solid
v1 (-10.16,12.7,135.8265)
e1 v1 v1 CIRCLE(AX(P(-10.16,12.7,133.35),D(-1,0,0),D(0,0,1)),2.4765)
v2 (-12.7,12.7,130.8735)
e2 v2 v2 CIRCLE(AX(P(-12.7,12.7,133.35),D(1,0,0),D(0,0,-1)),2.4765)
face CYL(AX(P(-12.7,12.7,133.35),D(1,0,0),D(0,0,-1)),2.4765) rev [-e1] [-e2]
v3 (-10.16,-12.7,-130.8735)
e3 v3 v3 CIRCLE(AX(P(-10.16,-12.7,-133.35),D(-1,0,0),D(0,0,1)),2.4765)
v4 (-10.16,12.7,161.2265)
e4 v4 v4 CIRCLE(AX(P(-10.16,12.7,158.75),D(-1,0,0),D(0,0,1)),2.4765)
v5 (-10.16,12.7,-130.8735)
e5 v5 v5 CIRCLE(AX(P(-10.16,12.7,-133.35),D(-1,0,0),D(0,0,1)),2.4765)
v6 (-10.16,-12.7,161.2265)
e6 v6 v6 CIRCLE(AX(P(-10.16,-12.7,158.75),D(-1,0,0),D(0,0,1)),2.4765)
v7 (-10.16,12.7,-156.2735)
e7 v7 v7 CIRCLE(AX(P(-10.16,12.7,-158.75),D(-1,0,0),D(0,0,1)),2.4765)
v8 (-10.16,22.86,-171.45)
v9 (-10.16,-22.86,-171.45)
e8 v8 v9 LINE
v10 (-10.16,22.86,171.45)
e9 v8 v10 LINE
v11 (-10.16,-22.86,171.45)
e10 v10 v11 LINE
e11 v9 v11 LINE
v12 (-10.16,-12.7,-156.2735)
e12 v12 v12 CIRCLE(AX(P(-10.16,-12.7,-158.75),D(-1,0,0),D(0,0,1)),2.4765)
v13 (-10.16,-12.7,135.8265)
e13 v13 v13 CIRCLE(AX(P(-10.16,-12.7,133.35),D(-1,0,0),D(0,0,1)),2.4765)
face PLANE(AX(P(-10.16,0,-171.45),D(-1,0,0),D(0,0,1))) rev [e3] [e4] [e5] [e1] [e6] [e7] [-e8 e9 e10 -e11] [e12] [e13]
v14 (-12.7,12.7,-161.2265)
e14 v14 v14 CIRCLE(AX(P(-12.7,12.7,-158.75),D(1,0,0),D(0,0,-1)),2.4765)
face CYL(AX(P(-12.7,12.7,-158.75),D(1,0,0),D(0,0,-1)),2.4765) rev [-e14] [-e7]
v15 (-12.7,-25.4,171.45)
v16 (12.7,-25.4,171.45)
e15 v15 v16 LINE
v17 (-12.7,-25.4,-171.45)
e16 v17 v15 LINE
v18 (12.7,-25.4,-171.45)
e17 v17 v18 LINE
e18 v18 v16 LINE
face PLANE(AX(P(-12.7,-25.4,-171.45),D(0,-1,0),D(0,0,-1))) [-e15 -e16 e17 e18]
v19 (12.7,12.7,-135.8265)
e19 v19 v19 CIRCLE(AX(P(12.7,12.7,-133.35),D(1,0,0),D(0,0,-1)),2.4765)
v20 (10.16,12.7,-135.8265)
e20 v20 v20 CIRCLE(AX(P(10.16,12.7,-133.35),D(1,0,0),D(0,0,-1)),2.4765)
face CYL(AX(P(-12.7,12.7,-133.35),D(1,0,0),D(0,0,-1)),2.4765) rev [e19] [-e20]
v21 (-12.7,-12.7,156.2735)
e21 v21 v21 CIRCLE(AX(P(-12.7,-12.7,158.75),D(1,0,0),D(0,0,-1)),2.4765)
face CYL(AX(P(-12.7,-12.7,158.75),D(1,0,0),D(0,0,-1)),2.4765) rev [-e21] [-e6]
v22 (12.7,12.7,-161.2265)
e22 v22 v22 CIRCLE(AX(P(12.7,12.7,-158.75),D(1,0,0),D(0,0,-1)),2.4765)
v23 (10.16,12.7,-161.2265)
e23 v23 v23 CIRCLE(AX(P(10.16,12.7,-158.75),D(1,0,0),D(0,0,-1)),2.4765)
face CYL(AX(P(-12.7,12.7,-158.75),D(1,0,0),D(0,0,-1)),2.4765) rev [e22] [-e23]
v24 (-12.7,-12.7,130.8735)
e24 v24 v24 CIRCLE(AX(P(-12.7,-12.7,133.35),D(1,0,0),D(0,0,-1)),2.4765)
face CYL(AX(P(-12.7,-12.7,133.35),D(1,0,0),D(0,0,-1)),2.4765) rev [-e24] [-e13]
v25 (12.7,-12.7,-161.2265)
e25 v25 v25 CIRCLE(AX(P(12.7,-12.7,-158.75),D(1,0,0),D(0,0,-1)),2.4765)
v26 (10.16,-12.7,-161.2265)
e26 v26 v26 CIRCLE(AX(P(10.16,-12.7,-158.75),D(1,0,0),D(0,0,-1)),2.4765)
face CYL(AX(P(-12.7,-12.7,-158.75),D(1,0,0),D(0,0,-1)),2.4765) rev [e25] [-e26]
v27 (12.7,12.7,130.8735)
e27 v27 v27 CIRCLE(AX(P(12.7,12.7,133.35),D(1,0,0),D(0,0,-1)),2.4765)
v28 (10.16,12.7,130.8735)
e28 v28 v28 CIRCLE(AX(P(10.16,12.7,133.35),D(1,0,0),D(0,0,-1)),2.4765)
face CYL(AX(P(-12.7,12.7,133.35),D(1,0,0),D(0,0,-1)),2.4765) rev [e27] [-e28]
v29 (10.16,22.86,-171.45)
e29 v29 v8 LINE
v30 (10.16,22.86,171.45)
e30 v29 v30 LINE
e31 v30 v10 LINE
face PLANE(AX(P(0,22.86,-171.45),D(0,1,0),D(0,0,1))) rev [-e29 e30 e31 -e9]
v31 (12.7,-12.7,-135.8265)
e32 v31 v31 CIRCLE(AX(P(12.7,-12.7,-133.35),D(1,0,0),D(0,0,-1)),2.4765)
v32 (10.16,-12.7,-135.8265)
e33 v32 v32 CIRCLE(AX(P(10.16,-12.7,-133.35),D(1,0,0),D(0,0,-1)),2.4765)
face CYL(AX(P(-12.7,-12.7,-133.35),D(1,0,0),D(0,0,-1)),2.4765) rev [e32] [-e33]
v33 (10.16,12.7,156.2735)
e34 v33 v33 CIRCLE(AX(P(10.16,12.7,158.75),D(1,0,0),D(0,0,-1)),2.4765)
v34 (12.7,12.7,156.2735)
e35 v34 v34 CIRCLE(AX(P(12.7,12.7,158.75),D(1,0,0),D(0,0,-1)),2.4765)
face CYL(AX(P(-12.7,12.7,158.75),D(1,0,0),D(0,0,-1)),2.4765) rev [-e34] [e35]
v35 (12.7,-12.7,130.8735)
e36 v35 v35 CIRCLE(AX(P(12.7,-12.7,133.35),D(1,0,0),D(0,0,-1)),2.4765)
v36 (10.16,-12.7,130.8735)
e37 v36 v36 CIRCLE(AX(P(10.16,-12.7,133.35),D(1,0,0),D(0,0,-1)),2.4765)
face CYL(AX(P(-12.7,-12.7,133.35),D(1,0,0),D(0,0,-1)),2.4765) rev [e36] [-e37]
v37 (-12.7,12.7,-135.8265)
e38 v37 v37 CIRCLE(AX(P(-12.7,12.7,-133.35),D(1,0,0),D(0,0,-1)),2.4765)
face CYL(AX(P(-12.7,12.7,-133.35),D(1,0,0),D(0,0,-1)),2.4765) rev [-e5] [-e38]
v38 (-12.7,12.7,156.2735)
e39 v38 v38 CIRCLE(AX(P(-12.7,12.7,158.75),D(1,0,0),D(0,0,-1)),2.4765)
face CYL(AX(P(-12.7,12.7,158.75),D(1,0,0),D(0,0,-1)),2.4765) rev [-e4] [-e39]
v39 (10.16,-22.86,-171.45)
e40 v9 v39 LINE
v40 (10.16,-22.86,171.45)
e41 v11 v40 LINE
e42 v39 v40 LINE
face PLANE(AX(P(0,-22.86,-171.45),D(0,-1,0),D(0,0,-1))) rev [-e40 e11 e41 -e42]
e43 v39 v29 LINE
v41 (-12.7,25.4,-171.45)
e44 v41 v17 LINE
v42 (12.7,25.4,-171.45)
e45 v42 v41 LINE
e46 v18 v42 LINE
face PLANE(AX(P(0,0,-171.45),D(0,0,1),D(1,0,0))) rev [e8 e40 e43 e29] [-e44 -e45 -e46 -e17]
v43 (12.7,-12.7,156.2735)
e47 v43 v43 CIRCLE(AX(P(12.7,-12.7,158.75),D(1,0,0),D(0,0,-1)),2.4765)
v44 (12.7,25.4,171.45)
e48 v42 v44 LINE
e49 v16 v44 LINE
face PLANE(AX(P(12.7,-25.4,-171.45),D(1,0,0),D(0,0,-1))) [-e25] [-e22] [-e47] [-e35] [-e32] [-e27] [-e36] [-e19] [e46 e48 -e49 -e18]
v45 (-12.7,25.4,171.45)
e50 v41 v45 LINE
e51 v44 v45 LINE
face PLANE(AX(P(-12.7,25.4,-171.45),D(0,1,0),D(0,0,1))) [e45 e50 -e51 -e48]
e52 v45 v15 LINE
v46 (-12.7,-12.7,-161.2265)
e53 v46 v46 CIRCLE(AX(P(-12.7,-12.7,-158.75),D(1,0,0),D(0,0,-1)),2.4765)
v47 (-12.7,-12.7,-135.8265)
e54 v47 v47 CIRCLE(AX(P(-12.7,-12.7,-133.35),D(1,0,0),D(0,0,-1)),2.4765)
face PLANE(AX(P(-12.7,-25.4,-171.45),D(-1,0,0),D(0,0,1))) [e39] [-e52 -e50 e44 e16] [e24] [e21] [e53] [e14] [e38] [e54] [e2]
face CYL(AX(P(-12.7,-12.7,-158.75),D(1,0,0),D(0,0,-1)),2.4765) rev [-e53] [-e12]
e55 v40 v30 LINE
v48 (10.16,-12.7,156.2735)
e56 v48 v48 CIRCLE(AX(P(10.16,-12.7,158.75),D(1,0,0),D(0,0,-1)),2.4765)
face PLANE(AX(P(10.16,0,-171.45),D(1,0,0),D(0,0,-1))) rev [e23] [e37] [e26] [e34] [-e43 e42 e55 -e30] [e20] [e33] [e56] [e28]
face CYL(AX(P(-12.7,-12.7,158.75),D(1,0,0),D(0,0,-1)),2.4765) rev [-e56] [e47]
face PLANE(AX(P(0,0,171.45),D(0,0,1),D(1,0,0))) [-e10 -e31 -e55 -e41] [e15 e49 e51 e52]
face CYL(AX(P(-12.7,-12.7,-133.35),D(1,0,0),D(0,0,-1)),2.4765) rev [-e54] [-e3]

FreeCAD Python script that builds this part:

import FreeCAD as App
import Part
import Sketcher
from FreeCAD import Vector
Q = App.Units.Quantity

doc = App.newDocument("Part")
body = doc.addObject("PartDesign::Body", "Body")

# Sketch on XY plane
sketch1 = doc.addObject("Sketcher::SketchObject", "Sketch")
body.addObject(sketch1)
sketch1.AttachmentSupport = (doc.XY_Plane, [""])
sketch1.MapMode = "FlatFace"
sketch1.addGeometry(Part.LineSegment(Vector(-13, 25, 0), Vector(-13, -25, 0)), False)
sketch1.addGeometry(Part.LineSegment(Vector(-13, -25, 0), Vector(13, -25, 0)), False)
sketch1.addGeometry(Part.LineSegment(Vector(13, -25, 0), Vector(13, 25, 0)), False)
sketch1.addGeometry(Part.LineSegment(Vector(13, 25, 0), Vector(-13, 25, 0)), False)
sketch1.addGeometry(Part.LineSegment(Vector(10, -23, 0), Vector(-10, -23, 0)), False)
sketch1.addGeometry(Part.LineSegment(Vector(-10, -23, 0), Vector(-10, 23, 0)), False)
sketch1.addGeometry(Part.LineSegment(Vector(-10, 23, 0), Vector(10, 23, 0)), False)
sketch1.addGeometry(Part.LineSegment(Vector(10, 23, 0), Vector(10, -23, 0)), False)
sketch1.addConstraint(Sketcher.Constraint("Coincident", 0, 2, 1, 1))
sketch1.addConstraint(Sketcher.Constraint("Coincident", 1, 2, 2, 1))
sketch1.addConstraint(Sketcher.Constraint("Coincident", 2, 2, 3, 1))
sketch1.addConstraint(Sketcher.Constraint("Coincident", 3, 2, 0, 1))
sketch1.addConstraint(Sketcher.Constraint("Coincident", 4, 2, 5, 1))
sketch1.addConstraint(Sketcher.Constraint("Coincident", 5, 2, 6, 1))
sketch1.addConstraint(Sketcher.Constraint("Coincident", 6, 2, 7, 1))
sketch1.addConstraint(Sketcher.Constraint("Coincident", 7, 2, 4, 1))
sketch1.addConstraint(Sketcher.Constraint("Vertical", 0))
sketch1.addConstraint(Sketcher.Constraint("Horizontal", 1))
sketch1.addConstraint(Sketcher.Constraint("Vertical", 2))
sketch1.addConstraint(Sketcher.Constraint("Horizontal", 3))
sketch1.addConstraint(Sketcher.Constraint("Horizontal", 4))
sketch1.addConstraint(Sketcher.Constraint("Vertical", 5))
sketch1.addConstraint(Sketcher.Constraint("Horizontal", 6))
sketch1.addConstraint(Sketcher.Constraint("Vertical", 7))
sketch1.addConstraint(Sketcher.Constraint("Symmetric", 0, 2, 2, 2, -1, 1))
sketch1.addConstraint(Sketcher.Constraint("Symmetric", 4, 2, 6, 2, -1, 1))
sketch1.addConstraint(Sketcher.Constraint("DistanceX", 1, 1, 1, 2, Q("1 in")))
sketch1.addConstraint(Sketcher.Constraint("DistanceY", 0, 2, 0, 1, Q("2 in")))
sketch1.addConstraint(Sketcher.Constraint("DistanceX", 4, 2, 4, 1, Q("0.8 in")))
sketch1.addConstraint(Sketcher.Constraint("DistanceY", 5, 1, 5, 2, Q("1.8 in")))
pad1 = doc.addObject("PartDesign::Pad", "Pad")
body.addObject(pad1)
pad1.Profile = sketch1
pad1.Length = Q("13.5 in")
pad1.Midplane = True

# Sketch on YZ plane
sketch2 = doc.addObject("Sketcher::SketchObject", "Sketch001")
body.addObject(sketch2)
sketch2.AttachmentSupport = (doc.YZ_Plane, [""])
sketch2.MapMode = "FlatFace"
sketch2.addGeometry(Part.Circle(Vector(12.7, -133.3, 0), Vector(0, 0, 1), 2.5), False)
sketch2.addGeometry(Part.Circle(Vector(-12.7, -133.3, 0), Vector(0, 0, 1), 2.5), False)
sketch2.addGeometry(Part.Circle(Vector(-12.7, -158.8, 0), Vector(0, 0, 1), 2.5), False)
sketch2.addGeometry(Part.Circle(Vector(12.7, -158.8, 0), Vector(0, 0, 1), 2.5), False)
sketch2.addGeometry(Part.Circle(Vector(12.7, 133.3, 0), Vector(0, 0, 1), 2.5), False)
sketch2.addGeometry(Part.Circle(Vector(12.7, 158.8, 0), Vector(0, 0, 1), 2.5), False)
sketch2.addGeometry(Part.Circle(Vector(-12.7, 158.8, 0), Vector(0, 0, 1), 2.5), False)
sketch2.addGeometry(Part.Circle(Vector(-12.7, 133.3, 0), Vector(0, 0, 1), 2.5), False)
sketch2.addConstraint(Sketcher.Constraint("Equal", 0, 1))
sketch2.addConstraint(Sketcher.Constraint("Equal", 1, 2))
sketch2.addConstraint(Sketcher.Constraint("Equal", 2, 3))
sketch2.addConstraint(Sketcher.Constraint("Equal", 3, 4))
sketch2.addConstraint(Sketcher.Constraint("Equal", 4, 5))
sketch2.addConstraint(Sketcher.Constraint("Equal", 5, 6))
sketch2.addConstraint(Sketcher.Constraint("Equal", 6, 7))
sketch2.addConstraint(Sketcher.Constraint("Symmetric", 1, 3, 4, 3, -1, 1))
sketch2.addConstraint(Sketcher.Constraint("Symmetric", 2, 3, 5, 3, -1, 1))
sketch2.addConstraint(Sketcher.Constraint("Symmetric", 3, 3, 6, 3, -1, 1))
sketch2.addConstraint(Sketcher.Constraint("Symmetric", 0, 3, 7, 3, -1, 1))
sketch2.addConstraint(Sketcher.Constraint("Symmetric", 0, 3, 1, 3, -2))
sketch2.addConstraint(Sketcher.Constraint("Symmetric", 2, 3, 3, 3, -2))
sketch2.addConstraint(Sketcher.Constraint("Vertical", 1, 3, 2, 3))
sketch2.addConstraint(Sketcher.Constraint("Diameter", 0, Q("0.195 in")))
sketch2.addConstraint(Sketcher.Constraint("DistanceX", 1, 3, 0, 3, Q("1 in")))
sketch2.addConstraint(Sketcher.Constraint("DistanceY", 2, 3, 1, 3, Q("1 in")))
sketch2.addConstraint(Sketcher.Constraint("DistanceY", 0, 3, 4, 3, Q("10.5 in")))
pocket1 = doc.addObject("PartDesign::Pocket", "Pocket")
body.addObject(pocket1)
pocket1.Profile = sketch2
pocket1.Type = "ThroughAll"
pocket1.Midplane = True

doc.recompute()
